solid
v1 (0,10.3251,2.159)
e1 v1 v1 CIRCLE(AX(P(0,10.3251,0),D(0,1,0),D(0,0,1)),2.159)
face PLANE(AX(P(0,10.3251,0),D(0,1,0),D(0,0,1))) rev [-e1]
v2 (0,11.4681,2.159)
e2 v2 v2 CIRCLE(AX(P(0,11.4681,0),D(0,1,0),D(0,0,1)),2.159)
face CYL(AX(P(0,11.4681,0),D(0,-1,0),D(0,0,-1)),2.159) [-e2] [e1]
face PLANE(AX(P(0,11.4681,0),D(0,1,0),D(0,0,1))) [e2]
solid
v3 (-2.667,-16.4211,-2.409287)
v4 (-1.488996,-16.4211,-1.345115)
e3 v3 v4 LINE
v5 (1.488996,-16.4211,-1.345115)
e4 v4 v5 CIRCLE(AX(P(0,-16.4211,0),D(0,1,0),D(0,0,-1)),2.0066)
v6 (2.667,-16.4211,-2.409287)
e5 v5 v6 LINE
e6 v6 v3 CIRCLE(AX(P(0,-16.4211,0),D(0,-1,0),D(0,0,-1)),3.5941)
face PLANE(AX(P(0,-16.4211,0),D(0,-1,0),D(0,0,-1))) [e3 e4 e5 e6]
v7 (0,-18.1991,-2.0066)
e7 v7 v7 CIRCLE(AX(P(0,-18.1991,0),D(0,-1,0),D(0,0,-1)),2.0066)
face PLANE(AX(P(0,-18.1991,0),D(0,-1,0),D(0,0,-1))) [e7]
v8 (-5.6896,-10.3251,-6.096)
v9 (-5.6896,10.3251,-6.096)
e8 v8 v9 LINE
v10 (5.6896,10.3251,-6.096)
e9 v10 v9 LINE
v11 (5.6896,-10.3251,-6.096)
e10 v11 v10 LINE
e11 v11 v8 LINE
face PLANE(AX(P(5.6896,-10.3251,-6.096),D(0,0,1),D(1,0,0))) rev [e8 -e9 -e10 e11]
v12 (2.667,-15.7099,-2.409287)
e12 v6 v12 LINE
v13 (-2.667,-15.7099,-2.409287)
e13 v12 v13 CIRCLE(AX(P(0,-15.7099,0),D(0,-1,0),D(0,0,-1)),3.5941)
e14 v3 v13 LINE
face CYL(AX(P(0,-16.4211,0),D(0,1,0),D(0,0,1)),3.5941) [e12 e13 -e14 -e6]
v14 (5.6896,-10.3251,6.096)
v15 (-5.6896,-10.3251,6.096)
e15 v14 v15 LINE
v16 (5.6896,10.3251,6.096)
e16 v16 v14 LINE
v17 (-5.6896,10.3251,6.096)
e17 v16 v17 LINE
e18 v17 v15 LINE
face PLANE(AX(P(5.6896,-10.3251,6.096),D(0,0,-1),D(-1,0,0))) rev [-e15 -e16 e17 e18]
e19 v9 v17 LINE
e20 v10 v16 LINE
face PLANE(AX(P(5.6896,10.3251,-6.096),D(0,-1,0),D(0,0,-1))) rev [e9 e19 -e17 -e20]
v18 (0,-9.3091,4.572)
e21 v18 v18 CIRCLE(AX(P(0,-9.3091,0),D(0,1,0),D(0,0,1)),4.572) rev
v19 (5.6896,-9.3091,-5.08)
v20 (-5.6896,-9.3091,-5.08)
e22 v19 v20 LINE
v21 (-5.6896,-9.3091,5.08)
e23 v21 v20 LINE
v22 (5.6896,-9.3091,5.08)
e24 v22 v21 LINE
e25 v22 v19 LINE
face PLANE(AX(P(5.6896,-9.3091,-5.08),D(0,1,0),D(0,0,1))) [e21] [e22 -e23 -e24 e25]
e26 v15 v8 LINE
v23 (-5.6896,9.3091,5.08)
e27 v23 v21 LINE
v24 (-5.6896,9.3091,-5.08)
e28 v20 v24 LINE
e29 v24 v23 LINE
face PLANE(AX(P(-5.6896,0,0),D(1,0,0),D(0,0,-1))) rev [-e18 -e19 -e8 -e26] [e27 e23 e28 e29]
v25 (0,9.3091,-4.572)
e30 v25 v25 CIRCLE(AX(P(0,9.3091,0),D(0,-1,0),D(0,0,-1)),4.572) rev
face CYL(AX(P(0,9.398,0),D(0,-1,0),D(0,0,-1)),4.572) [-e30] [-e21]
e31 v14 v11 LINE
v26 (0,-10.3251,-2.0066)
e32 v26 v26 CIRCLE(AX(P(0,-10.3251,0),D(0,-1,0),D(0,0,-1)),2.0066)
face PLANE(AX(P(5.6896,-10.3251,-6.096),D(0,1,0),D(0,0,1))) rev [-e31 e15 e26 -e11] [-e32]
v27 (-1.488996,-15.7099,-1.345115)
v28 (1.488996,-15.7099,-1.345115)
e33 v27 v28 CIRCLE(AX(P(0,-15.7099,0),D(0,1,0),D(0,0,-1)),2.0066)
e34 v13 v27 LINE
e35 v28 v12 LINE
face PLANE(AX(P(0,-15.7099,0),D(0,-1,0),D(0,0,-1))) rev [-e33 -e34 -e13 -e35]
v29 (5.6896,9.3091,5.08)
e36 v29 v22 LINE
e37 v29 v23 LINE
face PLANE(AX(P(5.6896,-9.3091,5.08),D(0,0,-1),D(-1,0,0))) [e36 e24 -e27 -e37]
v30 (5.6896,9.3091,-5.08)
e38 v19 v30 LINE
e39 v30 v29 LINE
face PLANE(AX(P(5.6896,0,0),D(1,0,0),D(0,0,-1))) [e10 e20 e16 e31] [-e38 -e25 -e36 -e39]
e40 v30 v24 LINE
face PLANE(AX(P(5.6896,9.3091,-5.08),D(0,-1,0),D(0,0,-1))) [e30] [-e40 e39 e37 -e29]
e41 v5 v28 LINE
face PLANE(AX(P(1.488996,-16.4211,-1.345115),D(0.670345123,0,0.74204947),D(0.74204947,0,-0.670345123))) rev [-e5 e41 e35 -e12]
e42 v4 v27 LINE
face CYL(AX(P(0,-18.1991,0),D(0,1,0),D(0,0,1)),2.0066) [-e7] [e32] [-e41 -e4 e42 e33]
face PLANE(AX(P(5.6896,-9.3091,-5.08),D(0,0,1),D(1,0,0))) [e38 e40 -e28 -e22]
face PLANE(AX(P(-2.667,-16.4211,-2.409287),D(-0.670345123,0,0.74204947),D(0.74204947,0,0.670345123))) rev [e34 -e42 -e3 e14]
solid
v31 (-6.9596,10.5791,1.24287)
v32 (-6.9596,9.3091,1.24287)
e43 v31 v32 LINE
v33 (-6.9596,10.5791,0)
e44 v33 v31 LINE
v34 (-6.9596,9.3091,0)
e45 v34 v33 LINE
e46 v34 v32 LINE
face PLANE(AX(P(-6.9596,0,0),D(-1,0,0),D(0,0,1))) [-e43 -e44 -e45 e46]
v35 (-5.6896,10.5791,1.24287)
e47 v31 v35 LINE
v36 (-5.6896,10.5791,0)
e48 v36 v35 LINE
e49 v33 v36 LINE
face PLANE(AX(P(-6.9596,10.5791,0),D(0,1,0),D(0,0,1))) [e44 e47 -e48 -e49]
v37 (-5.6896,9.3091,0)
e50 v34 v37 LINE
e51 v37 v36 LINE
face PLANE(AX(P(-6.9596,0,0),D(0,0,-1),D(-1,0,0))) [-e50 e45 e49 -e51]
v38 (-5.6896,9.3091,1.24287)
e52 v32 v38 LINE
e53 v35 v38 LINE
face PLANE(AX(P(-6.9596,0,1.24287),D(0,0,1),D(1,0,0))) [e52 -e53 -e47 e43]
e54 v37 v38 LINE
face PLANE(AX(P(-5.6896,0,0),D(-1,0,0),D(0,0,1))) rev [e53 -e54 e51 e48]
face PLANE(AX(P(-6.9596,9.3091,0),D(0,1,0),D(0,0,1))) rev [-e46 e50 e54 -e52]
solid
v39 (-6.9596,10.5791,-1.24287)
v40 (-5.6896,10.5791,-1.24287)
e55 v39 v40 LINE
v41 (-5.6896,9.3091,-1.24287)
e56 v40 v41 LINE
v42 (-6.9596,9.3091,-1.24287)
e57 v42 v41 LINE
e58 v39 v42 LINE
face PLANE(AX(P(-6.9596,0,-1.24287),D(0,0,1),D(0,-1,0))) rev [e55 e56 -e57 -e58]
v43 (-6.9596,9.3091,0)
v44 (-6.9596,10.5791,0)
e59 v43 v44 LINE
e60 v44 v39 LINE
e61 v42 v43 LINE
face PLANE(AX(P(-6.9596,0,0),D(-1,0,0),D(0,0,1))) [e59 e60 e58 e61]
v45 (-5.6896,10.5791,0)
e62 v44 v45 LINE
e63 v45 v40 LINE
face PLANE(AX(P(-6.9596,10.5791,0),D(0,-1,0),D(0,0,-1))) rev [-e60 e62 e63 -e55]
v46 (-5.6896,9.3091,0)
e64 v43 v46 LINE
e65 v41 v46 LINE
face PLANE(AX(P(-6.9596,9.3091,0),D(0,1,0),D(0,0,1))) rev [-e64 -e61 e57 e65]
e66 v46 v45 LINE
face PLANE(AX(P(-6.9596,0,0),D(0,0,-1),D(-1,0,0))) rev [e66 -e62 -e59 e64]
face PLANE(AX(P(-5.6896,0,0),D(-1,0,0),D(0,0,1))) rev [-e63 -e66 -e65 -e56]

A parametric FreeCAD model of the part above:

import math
import FreeCAD as App
import Part
import Sketcher
Q = App.Units.Quantity


def add_polygon(sketch, points):
    """Adds a closed chain of lines whose ends are joined by coincident constraints."""
    first, n = sketch.GeometryCount, len(points)
    for a, b in zip(points, points[1:] + points[:1]):
        sketch.addGeometry(Part.LineSegment(App.Vector(*a, 0), App.Vector(*b, 0)), False)
    for i in range(n):
        sketch.addConstraint(Sketcher.Constraint("Coincident", first + i, 2, first + (i + 1) % n, 1))

doc = App.newDocument("Part")
body = doc.addObject("PartDesign::Body", "Body")

# Sketch on YZ plane
sketch1 = body.newObject("Sketcher::SketchObject", "Sketch")
sketch1.AttachmentSupport = (doc.getObject("YZ_Plane"), [""])
sketch1.MapMode = "FlatFace"
add_polygon(sketch1, [(10, 6), (-10, 6), (-10, -6), (10, -6)])  # lines 0-3
add_polygon(sketch1, [(-9, -5), (-9, 5), (9, 5), (9, -5)])  # lines 4-7
sketch1.addConstraint(Sketcher.Constraint("Horizontal", 0))
sketch1.addConstraint(Sketcher.Constraint("Vertical", 1))
sketch1.addConstraint(Sketcher.Constraint("Horizontal", 2))
sketch1.addConstraint(Sketcher.Constraint("Vertical", 3))
sketch1.addConstraint(Sketcher.Constraint("Vertical", 4))
sketch1.addConstraint(Sketcher.Constraint("Horizontal", 5))
sketch1.addConstraint(Sketcher.Constraint("Vertical", 6))
sketch1.addConstraint(Sketcher.Constraint("Horizontal", 7))
sketch1.addConstraint(Sketcher.Constraint("Symmetric", 0, 2, 2, 2, -1, 1))
sketch1.addConstraint(Sketcher.Constraint("Symmetric", 4, 2, 6, 2, -1, 1))
sketch1.addConstraint(Sketcher.Constraint("DistanceY", 4, 1, 4, 2, Q("0.4 in")))
sketch1.addConstraint(Sketcher.Constraint("DistanceY", 1, 2, 1, 1, Q("0.48 in")))
sketch1.addConstraint(Sketcher.Constraint("DistanceX", 0, 2, 0, 1, Q("0.813 in")))
sketch1.addConstraint(Sketcher.Constraint("DistanceX", 5, 1, 5, 2, Q("0.733 in")))
pad1 = body.newObject("PartDesign::Pad", "Pad")
pad1.Profile = sketch1
pad1.Length = Q("0.448 in")
pad1.Midplane = True

# Sketch on XZ plane
sketch2 = body.newObject("Sketcher::SketchObject", "Sketch001")
sketch2.AttachmentSupport = (doc.getObject("XZ_Plane"), [""])
sketch2.MapMode = "FlatFace"
sketch2.addGeometry(Part.Circle(App.Vector(0, 0, 0), App.Vector(0, 0, 1), 4.6), False)
sketch2.addConstraint(Sketcher.Constraint("Coincident", 0, 3, -1, 1))
sketch2.addConstraint(Sketcher.Constraint("Diameter", 0, Q("0.36 in")))
pad2 = body.newObject("PartDesign::Pad", "Pad001")
pad2.Profile = sketch2
pad2.Length = Q("0.74 in")
pad2.Midplane = True

# Sketch on XZ plane
sketch3 = body.newObject("Sketcher::SketchObject", "Sketch002")
sketch3.AttachmentSupport = (doc.getObject("XZ_Plane"), [""])
sketch3.MapMode = "FlatFace"
sketch3.AttachmentOffset = App.Placement(App.Vector(0, 0, 0.4065 * 25.4), App.Rotation())
sketch3.addGeometry(Part.Circle(App.Vector(0, 0, 0), App.Vector(0, 0, 1), 2), False)
sketch3.addConstraint(Sketcher.Constraint("Coincident", 0, 3, -1, 1))
sketch3.addConstraint(Sketcher.Constraint("Diameter", 0, Q("0.158 in")))
pad3 = body.newObject("PartDesign::Pad", "Pad002")
pad3.Profile = sketch3
pad3.Length = Q("0.31 in")

# Sketch on XZ plane
sketch4 = body.newObject("Sketcher::SketchObject", "Sketch003")
sketch4.AttachmentSupport = (doc.getObject("XZ_Plane"), [""])
sketch4.MapMode = "FlatFace"
sketch4.AttachmentOffset = App.Placement(App.Vector(0, 0, 0.6185 * 25.4), App.Rotation())
sketch4.addGeometry(Part.LineSegment(App.Vector(-2.7, -2.4, 0), App.Vector(-1.5, -1.3, 0)), False)
sketch4.addGeometry(Part.ArcOfCircle(Part.Circle(App.Vector(0, 0, 0), App.Vector(0, 0, 1), 2), math.radians(-42), math.radians(222)), False)
sketch4.addGeometry(Part.LineSegment(App.Vector(1.5, -1.3, 0), App.Vector(2.7, -2.4, 0)), False)
sketch4.addGeometry(Part.ArcOfCircle(Part.Circle(App.Vector(0, 0, 0), App.Vector(0, 0, 1), 3.6), math.radians(-42), math.radians(222)), False)
sketch4.addConstraint(Sketcher.Constraint("Coincident", 0, 2, 1, 2))
sketch4.addConstraint(Sketcher.Constraint("Coincident", 1, 1, 2, 1))
sketch4.addConstraint(Sketcher.Constraint("Coincident", 2, 2, 3, 1))
sketch4.addConstraint(Sketcher.Constraint("Coincident", 3, 2, 0, 1))
sketch4.addConstraint(Sketcher.Constraint("Coincident", 1, 3, -1, 1))
sketch4.addConstraint(Sketcher.Constraint("Coincident", 3, 3, -1, 1))
sketch4.addConstraint(Sketcher.Constraint("Horizontal", 0, 2, 1, 1))
sketch4.addConstraint(Sketcher.Constraint("Horizontal", 2, 2, 3, 2))
sketch4.addConstraint(Sketcher.Constraint("Radius", 1, Q("0.079 in")))
sketch4.addConstraint(Sketcher.Constraint("Radius", 3, Q("0.1415 in")))
sketch4.addConstraint(Sketcher.Constraint("DistanceX", 3, 2, 2, 2, Q("0.21 in")))
sketch4.addConstraint(Sketcher.Constraint("DistanceX", 0, 2, -1, 1, 1.488996))
pad4 = body.newObject("PartDesign::Pad", "Pad003")
pad4.Profile = sketch4
pad4.Length = Q("0.028 in")
body2 = doc.addObject("PartDesign::Body", "Body001")

# Sketch on XZ plane
sketch5 = body2.newObject("Sketcher::SketchObject", "Sketch004")
sketch5.AttachmentSupport = (doc.getObject("XZ_Plane001"), [""])
sketch5.MapMode = "FlatFace"
sketch5.AttachmentOffset = App.Placement(App.Vector(0, 0, -0.4065 * 25.4), App.Rotation())
sketch5.addGeometry(Part.Circle(App.Vector(0, 0, 0), App.Vector(0, 0, 1), 2.2), False)
sketch5.addConstraint(Sketcher.Constraint("Coincident", 0, 3, -1, 1))
sketch5.addConstraint(Sketcher.Constraint("Diameter", 0, Q("0.17 in")))
pad5 = body2.newObject("PartDesign::Pad", "Pad004")
pad5.Profile = sketch5
pad5.Length = Q("0.045 in")
pad5.Reversed = True
body3 = doc.addObject("PartDesign::Body", "Body002")

# Sketch on YZ plane
sketch6 = body3.newObject("Sketcher::SketchObject", "Sketch005")
sketch6.AttachmentSupport = (doc.getObject("YZ_Plane002"), [""])
sketch6.MapMode = "FlatFace"
sketch6.AttachmentOffset = App.Placement(App.Vector(0, 0, -0.224 * 25.4), App.Rotation())
add_polygon(sketch6, [(10.6, -1.2), (9.3, -1.2), (9.3, 0), (10.6, 0)])  # lines 0-3
sketch6.addConstraint(Sketcher.Constraint("Horizontal", 0))
sketch6.addConstraint(Sketcher.Constraint("Vertical", 1))
sketch6.addConstraint(Sketcher.Constraint("Horizontal", 2))
sketch6.addConstraint(Sketcher.Constraint("Vertical", 3))
sketch6.addConstraint(Sketcher.Constraint("PointOnObject", 1, 2, -1))
sketch6.addConstraint(Sketcher.Constraint("DistanceX", 0, 2, 0, 1, Q("0.05 in")))
sketch6.addConstraint(Sketcher.Constraint("DistanceX", -1, 1, 0, 2, Q("0.3665 in")))
sketch6.addConstraint(Sketcher.Constraint("DistanceY", 1, 1, 1, 2, 1.24287))
pad6 = body3.newObject("PartDesign::Pad", "Pad005")
pad6.Profile = sketch6
pad6.Length = Q("0.05 in")
pad6.Reversed = True
body4 = doc.addObject("PartDesign::Body", "Body003")

# Sketch on YZ plane
sketch7 = body4.newObject("Sketcher::SketchObject", "Sketch006")
sketch7.AttachmentSupport = (doc.getObject("YZ_Plane003"), [""])
sketch7.MapMode = "FlatFace"
sketch7.AttachmentOffset = App.Placement(App.Vector(0, 0, -0.224 * 25.4), App.Rotation())
add_polygon(sketch7, [(10.6, 0), (9.3, 0), (9.3, 1.2), (10.6, 1.2)])  # lines 0-3
sketch7.addConstraint(Sketcher.Constraint("Horizontal", 0))
sketch7.addConstraint(Sketcher.Constraint("Vertical", 1))
sketch7.addConstraint(Sketcher.Constraint("Horizontal", 2))
sketch7.addConstraint(Sketcher.Constraint("Vertical", 3))
sketch7.addConstraint(Sketcher.Constraint("PointOnObject", 0, 2, -1))
sketch7.addConstraint(Sketcher.Constraint("DistanceX", 0, 2, 0, 1, Q("0.05 in")))
sketch7.addConstraint(Sketcher.Constraint("DistanceX", -1, 1, 0, 2, Q("0.3665 in")))
sketch7.addConstraint(Sketcher.Constraint("DistanceY", 1, 1, 1, 2, 1.24287))
pad7 = body4.newObject("PartDesign::Pad", "Pad006")
pad7.Profile = sketch7
pad7.Length = Q("0.05 in")
pad7.Reversed = True

doc.recompute()
